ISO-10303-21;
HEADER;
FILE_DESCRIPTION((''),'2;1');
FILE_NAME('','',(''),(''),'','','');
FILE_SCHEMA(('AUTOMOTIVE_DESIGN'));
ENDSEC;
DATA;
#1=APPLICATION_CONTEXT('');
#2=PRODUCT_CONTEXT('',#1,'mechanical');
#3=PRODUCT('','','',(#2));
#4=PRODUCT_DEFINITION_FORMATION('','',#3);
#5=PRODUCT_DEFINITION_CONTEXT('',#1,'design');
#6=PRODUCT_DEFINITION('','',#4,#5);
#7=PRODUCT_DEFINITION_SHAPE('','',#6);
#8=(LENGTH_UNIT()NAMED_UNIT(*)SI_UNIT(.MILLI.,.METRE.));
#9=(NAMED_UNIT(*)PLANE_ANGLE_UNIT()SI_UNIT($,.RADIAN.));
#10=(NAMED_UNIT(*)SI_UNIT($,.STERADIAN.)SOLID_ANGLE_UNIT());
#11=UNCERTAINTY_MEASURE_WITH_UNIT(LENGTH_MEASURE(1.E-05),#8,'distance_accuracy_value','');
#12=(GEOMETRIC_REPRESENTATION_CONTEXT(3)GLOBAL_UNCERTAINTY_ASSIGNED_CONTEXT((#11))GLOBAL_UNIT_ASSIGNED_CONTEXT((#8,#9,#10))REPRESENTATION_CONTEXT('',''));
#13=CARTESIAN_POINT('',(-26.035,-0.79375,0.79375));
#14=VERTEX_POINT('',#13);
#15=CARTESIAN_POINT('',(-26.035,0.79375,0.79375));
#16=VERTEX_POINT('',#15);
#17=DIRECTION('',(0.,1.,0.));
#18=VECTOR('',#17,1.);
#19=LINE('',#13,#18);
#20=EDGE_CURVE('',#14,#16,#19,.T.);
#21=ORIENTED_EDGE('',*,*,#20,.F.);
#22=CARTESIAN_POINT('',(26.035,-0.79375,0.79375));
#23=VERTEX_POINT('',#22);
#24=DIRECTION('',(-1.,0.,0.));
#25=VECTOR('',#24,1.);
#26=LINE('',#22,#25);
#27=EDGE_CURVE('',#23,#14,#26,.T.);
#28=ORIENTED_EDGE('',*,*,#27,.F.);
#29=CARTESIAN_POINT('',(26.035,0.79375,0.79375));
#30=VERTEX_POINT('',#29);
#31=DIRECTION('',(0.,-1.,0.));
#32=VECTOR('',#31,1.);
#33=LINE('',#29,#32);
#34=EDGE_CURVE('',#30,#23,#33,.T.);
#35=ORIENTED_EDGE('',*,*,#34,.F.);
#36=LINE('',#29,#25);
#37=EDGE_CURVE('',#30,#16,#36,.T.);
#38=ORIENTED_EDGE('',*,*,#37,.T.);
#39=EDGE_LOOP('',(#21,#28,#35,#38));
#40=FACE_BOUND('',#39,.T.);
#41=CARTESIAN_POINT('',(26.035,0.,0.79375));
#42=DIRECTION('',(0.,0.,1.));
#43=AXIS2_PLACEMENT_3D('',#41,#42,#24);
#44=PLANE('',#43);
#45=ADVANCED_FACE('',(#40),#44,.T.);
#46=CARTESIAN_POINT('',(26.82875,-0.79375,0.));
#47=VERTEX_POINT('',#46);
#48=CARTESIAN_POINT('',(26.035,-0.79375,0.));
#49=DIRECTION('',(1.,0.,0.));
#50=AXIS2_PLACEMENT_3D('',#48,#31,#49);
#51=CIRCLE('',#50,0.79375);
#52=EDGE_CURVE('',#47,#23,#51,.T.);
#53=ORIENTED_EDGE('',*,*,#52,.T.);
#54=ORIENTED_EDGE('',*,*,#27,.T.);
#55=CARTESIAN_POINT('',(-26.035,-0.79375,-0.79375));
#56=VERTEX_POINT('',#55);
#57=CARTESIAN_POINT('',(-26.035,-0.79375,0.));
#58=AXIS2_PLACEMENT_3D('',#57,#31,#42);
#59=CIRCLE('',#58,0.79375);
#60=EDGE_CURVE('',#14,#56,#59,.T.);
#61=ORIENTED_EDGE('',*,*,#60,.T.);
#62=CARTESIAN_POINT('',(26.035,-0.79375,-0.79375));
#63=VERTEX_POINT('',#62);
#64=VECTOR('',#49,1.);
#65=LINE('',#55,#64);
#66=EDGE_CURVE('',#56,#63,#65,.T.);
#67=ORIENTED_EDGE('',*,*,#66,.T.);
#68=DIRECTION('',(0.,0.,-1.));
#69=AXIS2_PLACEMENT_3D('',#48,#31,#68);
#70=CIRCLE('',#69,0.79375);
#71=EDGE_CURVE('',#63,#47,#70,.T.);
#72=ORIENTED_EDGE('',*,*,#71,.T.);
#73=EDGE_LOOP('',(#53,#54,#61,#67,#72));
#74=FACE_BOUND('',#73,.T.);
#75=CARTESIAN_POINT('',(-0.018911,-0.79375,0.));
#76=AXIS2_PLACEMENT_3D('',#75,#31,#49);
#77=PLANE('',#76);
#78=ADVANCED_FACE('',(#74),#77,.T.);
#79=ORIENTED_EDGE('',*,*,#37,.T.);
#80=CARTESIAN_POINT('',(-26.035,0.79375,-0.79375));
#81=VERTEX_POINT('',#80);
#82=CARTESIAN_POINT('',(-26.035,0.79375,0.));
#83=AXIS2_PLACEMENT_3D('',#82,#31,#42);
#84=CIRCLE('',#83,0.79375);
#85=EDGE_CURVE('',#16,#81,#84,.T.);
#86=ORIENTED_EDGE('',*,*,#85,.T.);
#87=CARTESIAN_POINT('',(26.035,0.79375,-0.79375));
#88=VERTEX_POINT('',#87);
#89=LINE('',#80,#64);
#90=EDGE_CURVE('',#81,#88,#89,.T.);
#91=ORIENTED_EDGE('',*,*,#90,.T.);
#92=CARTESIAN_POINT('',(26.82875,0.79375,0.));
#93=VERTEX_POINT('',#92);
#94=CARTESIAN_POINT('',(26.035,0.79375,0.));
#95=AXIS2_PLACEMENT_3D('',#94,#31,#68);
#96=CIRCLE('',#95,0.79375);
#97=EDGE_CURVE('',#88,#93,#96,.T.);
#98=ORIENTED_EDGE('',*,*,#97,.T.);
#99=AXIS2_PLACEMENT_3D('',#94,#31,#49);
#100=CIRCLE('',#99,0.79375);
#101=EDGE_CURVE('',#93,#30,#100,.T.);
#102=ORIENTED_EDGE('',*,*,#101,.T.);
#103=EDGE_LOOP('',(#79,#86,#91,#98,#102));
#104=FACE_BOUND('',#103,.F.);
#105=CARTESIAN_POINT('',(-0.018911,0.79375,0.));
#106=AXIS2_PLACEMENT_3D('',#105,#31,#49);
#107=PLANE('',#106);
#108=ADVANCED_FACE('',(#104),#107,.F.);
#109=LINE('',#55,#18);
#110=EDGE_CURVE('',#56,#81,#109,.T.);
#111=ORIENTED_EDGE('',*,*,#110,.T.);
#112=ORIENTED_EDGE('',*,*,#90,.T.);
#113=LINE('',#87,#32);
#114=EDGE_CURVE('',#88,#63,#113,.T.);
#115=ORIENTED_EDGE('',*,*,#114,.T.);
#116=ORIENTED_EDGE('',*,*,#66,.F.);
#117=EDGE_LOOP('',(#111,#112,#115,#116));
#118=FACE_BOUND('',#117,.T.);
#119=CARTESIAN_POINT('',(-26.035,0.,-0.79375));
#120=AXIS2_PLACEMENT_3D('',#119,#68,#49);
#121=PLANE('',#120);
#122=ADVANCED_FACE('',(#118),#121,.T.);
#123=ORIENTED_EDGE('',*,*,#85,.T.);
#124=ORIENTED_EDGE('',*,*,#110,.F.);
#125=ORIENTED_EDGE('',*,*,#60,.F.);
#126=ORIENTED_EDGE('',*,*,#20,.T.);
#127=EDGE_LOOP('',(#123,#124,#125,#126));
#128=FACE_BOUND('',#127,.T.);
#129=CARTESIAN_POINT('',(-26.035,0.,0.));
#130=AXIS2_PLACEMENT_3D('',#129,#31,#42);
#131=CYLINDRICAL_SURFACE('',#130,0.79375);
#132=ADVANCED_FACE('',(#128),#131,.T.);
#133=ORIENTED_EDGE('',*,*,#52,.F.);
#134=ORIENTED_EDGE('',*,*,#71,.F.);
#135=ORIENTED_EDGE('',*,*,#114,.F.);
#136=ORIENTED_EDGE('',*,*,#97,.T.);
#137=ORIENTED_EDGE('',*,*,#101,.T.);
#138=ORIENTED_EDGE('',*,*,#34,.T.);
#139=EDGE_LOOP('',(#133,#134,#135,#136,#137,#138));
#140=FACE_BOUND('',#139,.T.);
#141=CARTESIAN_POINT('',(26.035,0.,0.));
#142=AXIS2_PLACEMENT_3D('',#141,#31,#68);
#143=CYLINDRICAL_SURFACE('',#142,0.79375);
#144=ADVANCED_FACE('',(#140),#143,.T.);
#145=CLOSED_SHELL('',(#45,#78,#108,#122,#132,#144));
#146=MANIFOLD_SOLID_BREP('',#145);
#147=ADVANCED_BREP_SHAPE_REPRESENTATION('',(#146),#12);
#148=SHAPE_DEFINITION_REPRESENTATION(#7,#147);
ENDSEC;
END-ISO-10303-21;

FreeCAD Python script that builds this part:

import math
import FreeCAD as App
import Part
import Sketcher

V = App.Vector
Q = App.Units.Quantity

doc = App.newDocument("Part")
body = doc.addObject("PartDesign::Body", "Body")

sketch1 = body.newObject("Sketcher::SketchObject", "Sketch")
sketch1.AttachmentSupport = (doc.getObject("XZ_Plane"), [""])
sketch1.MapMode = "FlatFace"
sketch1.addGeometry(Part.LineSegment(V(-26, -0.8, 0), V(26, -0.8, 0)), False)
sketch1.addGeometry(Part.ArcOfCircle(Part.Circle(V(26, 0, 0), V(0, 0, 1), 0.8), math.radians(-90), math.radians(0)), False)
sketch1.addGeometry(Part.ArcOfCircle(Part.Circle(V(26, 0, 0), V(0, 0, 1), 0.8), math.radians(0), math.radians(90)), False)
sketch1.addGeometry(Part.LineSegment(V(26, 0.8, 0), V(-26, 0.8, 0)), False)
sketch1.addGeometry(Part.ArcOfCircle(Part.Circle(V(-26, 0, 0), V(0, 0, 1), 0.8), math.radians(90), math.radians(270)), False)
sketch1.addConstraint(Sketcher.Constraint("Tangent", 0, 2, 1, 1))
sketch1.addConstraint(Sketcher.Constraint("Tangent", 1, 2, 2, 1))
sketch1.addConstraint(Sketcher.Constraint("Tangent", 2, 2, 3, 1))
sketch1.addConstraint(Sketcher.Constraint("Tangent", 3, 2, 4, 1))
sketch1.addConstraint(Sketcher.Constraint("Tangent", 4, 2, 0, 1))
sketch1.addConstraint(Sketcher.Constraint("Horizontal", 0))
sketch1.addConstraint(Sketcher.Constraint("Horizontal", 3))
sketch1.addConstraint(Sketcher.Constraint("Equal", 1, 2))
sketch1.addConstraint(Sketcher.Constraint("Symmetric", 1, 3, 4, 3, -1, 1))
sketch1.addConstraint(Sketcher.Constraint("PointOnObject", 1, 2, -1))
sketch1.addConstraint(Sketcher.Constraint("Radius", 1, Q("0.03125 in")))
sketch1.addConstraint(Sketcher.Constraint("DistanceX", 0, 1, 0, 2, Q("2.05 in")))
pad1 = body.newObject("PartDesign::Pad", "Pad")
pad1.Profile = sketch1
pad1.Length = Q("0.0625 in")
pad1.Midplane = True

doc.recompute()
